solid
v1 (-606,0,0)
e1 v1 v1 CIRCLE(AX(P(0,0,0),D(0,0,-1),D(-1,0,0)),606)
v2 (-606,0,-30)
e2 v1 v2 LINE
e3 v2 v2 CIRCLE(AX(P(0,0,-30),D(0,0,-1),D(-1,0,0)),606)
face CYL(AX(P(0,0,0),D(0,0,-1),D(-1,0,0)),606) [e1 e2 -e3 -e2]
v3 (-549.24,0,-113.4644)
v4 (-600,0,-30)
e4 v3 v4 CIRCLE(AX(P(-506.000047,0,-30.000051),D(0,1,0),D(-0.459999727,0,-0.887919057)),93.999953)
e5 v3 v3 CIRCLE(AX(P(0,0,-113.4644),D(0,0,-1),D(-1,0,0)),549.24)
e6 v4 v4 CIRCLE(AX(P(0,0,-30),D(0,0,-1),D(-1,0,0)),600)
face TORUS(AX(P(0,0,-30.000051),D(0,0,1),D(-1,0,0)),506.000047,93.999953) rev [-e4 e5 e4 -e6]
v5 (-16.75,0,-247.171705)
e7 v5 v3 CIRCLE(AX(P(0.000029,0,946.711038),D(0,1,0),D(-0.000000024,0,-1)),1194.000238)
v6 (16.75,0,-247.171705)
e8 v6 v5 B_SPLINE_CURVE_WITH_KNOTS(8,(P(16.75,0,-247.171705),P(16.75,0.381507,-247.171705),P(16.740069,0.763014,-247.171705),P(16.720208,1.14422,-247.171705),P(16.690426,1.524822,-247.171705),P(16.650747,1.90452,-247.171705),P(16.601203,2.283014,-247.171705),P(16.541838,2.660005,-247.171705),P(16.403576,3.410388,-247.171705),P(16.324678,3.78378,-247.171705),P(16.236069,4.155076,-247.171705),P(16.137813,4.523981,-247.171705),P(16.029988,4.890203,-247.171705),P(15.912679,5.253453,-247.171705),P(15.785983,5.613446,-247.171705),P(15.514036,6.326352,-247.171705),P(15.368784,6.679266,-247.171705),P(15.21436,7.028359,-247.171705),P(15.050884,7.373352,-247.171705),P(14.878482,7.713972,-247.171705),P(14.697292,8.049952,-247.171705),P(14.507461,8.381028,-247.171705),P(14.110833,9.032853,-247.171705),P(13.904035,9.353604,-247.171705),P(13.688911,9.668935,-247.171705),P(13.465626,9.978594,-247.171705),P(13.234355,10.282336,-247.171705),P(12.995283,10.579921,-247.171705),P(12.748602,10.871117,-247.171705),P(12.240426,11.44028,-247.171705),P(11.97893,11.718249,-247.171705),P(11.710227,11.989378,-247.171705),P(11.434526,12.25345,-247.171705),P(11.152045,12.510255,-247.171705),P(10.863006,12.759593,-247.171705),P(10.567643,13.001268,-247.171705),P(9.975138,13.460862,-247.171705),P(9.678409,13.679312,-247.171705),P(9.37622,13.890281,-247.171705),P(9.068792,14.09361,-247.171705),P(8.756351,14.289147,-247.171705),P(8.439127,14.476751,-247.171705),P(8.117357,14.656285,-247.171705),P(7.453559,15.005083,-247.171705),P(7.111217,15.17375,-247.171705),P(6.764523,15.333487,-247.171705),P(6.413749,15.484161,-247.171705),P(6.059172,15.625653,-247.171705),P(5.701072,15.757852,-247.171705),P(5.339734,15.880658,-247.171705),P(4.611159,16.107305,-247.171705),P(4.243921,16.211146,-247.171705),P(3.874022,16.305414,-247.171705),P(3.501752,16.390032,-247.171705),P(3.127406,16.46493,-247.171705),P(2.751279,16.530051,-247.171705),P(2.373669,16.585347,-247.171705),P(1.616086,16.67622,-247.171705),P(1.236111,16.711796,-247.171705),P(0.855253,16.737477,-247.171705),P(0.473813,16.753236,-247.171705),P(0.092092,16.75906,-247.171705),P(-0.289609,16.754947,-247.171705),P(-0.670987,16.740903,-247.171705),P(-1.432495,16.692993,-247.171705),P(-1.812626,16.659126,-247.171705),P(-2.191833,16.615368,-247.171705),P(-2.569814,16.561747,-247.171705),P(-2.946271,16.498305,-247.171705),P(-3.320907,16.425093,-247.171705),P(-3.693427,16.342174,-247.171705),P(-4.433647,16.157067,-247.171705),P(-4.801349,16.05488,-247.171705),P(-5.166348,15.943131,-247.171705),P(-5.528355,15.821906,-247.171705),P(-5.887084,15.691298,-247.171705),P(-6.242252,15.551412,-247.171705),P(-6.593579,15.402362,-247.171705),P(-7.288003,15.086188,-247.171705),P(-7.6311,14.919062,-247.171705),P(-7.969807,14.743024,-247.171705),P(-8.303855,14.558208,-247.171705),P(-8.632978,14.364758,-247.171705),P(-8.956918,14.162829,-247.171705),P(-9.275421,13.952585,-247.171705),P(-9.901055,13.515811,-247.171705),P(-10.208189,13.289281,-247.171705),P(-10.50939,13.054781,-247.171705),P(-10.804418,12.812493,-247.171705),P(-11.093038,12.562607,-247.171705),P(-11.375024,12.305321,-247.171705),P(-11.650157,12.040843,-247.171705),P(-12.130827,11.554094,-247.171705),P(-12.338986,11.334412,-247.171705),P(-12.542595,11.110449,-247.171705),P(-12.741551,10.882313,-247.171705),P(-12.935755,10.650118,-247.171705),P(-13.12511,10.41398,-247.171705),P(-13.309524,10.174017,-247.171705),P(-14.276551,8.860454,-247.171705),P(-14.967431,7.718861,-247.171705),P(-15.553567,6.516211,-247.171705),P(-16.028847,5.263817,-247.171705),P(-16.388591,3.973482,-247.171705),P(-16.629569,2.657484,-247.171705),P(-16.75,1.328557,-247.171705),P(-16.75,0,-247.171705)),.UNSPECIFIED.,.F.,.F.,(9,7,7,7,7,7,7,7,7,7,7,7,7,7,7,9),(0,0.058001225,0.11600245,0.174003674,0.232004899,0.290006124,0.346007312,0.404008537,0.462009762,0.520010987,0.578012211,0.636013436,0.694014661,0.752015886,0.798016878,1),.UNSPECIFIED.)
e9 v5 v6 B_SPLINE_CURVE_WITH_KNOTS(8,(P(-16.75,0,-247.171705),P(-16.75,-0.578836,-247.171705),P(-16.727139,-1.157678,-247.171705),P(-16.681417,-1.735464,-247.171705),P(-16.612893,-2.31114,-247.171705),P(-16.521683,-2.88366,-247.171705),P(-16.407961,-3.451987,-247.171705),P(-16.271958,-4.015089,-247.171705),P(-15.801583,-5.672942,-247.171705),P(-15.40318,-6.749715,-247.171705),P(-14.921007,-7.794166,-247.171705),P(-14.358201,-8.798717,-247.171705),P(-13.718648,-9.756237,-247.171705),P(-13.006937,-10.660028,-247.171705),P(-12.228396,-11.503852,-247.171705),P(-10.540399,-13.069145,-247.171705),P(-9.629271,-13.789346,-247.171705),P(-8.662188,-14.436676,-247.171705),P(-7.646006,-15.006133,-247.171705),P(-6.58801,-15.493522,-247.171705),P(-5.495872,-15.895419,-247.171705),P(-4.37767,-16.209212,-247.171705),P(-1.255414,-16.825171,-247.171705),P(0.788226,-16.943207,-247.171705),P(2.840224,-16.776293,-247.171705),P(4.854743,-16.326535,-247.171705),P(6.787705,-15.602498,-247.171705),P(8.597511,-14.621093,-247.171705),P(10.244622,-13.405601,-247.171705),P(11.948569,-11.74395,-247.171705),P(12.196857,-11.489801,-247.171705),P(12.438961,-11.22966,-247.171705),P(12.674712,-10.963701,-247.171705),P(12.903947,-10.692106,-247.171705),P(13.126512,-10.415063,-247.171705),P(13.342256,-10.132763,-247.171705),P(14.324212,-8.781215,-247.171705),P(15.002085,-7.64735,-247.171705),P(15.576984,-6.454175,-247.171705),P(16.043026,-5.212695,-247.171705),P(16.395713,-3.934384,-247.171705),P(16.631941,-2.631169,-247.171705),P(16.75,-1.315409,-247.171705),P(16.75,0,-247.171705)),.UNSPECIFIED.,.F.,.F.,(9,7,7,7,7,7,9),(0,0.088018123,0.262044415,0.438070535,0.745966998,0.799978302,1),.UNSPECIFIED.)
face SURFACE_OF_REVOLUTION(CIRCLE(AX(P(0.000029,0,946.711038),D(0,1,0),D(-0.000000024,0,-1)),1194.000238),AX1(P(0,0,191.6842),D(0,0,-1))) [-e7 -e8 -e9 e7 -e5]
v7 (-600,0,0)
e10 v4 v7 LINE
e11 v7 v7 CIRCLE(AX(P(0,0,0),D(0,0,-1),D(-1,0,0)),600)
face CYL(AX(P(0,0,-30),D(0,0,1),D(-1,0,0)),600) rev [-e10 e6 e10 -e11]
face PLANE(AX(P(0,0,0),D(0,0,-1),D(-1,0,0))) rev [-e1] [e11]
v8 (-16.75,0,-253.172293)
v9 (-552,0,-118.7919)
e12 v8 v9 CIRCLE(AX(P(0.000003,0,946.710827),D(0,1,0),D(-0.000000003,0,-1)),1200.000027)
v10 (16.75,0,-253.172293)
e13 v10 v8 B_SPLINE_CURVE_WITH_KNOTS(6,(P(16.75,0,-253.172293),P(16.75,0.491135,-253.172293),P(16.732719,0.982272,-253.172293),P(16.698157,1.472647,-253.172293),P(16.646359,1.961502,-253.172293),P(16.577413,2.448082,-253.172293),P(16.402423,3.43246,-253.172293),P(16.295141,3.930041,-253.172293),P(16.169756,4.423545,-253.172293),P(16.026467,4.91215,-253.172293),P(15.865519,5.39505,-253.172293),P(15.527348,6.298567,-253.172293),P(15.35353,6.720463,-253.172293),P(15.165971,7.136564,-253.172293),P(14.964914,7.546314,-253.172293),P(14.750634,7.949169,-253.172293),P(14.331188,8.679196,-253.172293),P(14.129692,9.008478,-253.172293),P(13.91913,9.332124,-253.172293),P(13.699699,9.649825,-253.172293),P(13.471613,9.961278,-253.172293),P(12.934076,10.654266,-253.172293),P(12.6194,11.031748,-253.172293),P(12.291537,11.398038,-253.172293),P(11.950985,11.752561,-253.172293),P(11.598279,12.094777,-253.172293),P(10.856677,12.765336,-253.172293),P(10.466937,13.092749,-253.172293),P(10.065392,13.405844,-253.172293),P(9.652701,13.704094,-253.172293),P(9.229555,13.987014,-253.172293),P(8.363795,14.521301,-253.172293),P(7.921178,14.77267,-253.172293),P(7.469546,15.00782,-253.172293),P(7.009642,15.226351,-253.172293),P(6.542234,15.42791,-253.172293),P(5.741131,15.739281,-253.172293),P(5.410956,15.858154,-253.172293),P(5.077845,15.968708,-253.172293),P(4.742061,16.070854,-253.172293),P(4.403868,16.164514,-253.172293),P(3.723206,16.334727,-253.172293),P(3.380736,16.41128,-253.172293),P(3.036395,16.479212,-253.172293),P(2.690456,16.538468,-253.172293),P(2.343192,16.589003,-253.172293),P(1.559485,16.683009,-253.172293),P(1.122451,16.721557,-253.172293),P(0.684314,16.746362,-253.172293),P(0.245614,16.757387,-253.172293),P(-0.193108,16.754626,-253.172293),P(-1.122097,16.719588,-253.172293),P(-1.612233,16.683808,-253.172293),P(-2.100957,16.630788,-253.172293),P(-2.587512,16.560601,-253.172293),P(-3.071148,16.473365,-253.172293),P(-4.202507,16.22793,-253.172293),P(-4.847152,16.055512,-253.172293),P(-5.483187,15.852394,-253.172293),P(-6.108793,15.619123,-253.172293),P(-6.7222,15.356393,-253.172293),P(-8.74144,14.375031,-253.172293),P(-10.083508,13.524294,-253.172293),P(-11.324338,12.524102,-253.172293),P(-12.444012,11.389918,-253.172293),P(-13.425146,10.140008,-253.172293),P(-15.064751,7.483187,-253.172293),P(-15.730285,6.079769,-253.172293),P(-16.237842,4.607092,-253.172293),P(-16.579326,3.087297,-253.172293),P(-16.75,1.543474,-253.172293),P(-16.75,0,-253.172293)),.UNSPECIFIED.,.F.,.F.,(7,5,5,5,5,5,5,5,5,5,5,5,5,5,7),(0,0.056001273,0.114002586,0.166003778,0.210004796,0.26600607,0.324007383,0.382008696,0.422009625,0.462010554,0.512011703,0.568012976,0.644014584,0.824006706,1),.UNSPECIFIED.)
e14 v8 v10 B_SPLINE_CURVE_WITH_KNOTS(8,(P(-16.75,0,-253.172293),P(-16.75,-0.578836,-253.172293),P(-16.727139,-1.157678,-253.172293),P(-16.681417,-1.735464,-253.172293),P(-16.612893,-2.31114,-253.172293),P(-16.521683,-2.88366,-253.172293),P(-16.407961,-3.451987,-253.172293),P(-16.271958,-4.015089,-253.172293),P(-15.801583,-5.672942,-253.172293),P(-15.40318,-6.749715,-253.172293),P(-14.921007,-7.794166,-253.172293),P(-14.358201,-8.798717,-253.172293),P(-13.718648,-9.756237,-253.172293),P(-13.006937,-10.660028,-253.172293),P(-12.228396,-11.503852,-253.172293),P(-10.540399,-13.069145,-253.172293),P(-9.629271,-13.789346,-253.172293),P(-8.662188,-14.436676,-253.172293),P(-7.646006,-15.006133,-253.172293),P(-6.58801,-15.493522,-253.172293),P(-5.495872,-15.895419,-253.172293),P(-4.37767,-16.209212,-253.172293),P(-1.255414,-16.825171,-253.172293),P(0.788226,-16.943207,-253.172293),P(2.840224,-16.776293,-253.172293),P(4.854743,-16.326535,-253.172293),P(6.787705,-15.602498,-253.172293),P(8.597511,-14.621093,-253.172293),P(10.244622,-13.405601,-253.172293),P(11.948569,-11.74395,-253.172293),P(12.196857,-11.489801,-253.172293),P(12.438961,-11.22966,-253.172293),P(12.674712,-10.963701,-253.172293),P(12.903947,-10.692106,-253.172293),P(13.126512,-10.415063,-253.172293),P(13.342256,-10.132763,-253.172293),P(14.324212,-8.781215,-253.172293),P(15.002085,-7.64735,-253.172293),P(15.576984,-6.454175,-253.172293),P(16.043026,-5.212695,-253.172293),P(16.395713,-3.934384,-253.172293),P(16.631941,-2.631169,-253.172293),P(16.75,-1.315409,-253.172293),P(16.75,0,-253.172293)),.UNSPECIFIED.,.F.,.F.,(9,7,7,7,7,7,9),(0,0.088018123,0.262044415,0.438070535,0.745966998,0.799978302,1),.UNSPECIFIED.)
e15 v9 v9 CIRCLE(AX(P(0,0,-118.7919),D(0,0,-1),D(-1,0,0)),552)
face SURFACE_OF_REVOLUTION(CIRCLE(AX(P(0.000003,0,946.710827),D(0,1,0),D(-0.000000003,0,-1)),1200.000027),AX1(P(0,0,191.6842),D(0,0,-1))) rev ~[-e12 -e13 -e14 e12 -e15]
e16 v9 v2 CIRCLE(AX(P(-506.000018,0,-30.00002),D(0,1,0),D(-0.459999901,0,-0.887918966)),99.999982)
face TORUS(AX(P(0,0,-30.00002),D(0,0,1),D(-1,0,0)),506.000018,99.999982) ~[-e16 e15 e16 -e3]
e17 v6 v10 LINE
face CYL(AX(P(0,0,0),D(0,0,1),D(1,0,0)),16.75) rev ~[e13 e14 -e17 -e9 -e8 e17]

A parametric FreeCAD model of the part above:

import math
import FreeCAD as App
import Part
import Sketcher

V = App.Vector
Q = App.Units.Quantity

doc = App.newDocument("Part")
body = doc.addObject("PartDesign::Body", "Body")

# Sketch on XZ plane
sketch1 = body.newObject("Sketcher::SketchObject", "Sketch")
sketch1.AttachmentSupport = (doc.getObject("XZ_Plane"), [""])
sketch1.MapMode = "FlatFace"
sketch1.addGeometry([
    Part.LineSegment(V(-606, -30, 0), V(-606, 0, 0)),  # 0
    Part.LineSegment(V(-606, 0, 0), V(-600, 0, 0)),  # 1
    Part.LineSegment(V(-600, 0, 0), V(-600, -30, 0)),  # 2
    Part.ArcOfCircle(Part.Circle(V(-506, -30, 0), V(0, 0, 1), 94), math.radians(180), math.radians(243)),  # 3
    Part.ArcOfCircle(Part.Circle(V(0, 947, 0), V(0, 0, 1), 1194), math.radians(-117), math.radians(-90)),  # 4
    Part.LineSegment(V(0, -247, 0), V(0, -253, 0)),  # 5
    Part.ArcOfCircle(Part.Circle(V(0, 947, 0), V(0, 0, 1), 1200), math.radians(-117), math.radians(-90)),  # 6
    Part.ArcOfCircle(Part.Circle(V(-506, -30, 0), V(0, 0, 1), 100), math.radians(180), math.radians(243)),  # 7
], False)
sketch1.addConstraint([
    Sketcher.Constraint("Coincident", 0, 2, 1, 1),
    Sketcher.Constraint("Coincident", 1, 2, 2, 1),
    Sketcher.Constraint("Tangent", 2, 2, 3, 1),
    Sketcher.Constraint("Tangent", 3, 2, 4, 1),
    Sketcher.Constraint("Coincident", 4, 2, 5, 1),
    Sketcher.Constraint("Coincident", 5, 2, 6, 2),
    Sketcher.Constraint("Tangent", 6, 1, 7, 2),
    Sketcher.Constraint("Tangent", 7, 1, 0, 1),
    Sketcher.Constraint("Vertical", 0),
    Sketcher.Constraint("Horizontal", 1),
    Sketcher.Constraint("Vertical", 2),
    Sketcher.Constraint("Vertical", 5),
    Sketcher.Constraint("Coincident", 6, 3, 4, 3),
    Sketcher.Constraint("Coincident", 7, 3, 3, 3),
    Sketcher.Constraint("PointOnObject", 4, 3, -2),
    Sketcher.Constraint("PointOnObject", 0, 2, -1),
    Sketcher.Constraint("PointOnObject", 5, 2, -2),
    Sketcher.Constraint("Radius", 6, Q("1200 mm")),
    Sketcher.Constraint("Radius", 7, Q("100 mm")),
    Sketcher.Constraint("DistanceX", 1, 1, 1, 2, Q("6 mm")),
    Sketcher.Constraint("DistanceY", 0, 1, 0, 2, Q("30 mm")),
    Sketcher.Constraint("DistanceX", 3, 3, -1, 1, Q("506 mm")),
])
revolution = body.newObject("PartDesign::Revolution", "Revolution")
revolution.Profile = sketch1
revolution.ReferenceAxis = (sketch1, ["V_Axis"])
revolution.Angle = 360

# Sketch on XY plane
sketch2 = body.newObject("Sketcher::SketchObject", "Sketch001")
sketch2.AttachmentSupport = (doc.getObject("XY_Plane"), [""])
sketch2.MapMode = "FlatFace"
sketch2.addGeometry(Part.Circle(V(0, 0, 0), V(0, 0, 1), 17), False)
sketch2.addConstraint([
    Sketcher.Constraint("Coincident", 0, 3, -1, 1),
    Sketcher.Constraint("Diameter", 0, Q("33.5 mm")),
])
pocket1 = body.newObject("PartDesign::Pocket", "Pocket")
pocket1.Profile = sketch2
pocket1.Type = "ThroughAll"

doc.recompute()
